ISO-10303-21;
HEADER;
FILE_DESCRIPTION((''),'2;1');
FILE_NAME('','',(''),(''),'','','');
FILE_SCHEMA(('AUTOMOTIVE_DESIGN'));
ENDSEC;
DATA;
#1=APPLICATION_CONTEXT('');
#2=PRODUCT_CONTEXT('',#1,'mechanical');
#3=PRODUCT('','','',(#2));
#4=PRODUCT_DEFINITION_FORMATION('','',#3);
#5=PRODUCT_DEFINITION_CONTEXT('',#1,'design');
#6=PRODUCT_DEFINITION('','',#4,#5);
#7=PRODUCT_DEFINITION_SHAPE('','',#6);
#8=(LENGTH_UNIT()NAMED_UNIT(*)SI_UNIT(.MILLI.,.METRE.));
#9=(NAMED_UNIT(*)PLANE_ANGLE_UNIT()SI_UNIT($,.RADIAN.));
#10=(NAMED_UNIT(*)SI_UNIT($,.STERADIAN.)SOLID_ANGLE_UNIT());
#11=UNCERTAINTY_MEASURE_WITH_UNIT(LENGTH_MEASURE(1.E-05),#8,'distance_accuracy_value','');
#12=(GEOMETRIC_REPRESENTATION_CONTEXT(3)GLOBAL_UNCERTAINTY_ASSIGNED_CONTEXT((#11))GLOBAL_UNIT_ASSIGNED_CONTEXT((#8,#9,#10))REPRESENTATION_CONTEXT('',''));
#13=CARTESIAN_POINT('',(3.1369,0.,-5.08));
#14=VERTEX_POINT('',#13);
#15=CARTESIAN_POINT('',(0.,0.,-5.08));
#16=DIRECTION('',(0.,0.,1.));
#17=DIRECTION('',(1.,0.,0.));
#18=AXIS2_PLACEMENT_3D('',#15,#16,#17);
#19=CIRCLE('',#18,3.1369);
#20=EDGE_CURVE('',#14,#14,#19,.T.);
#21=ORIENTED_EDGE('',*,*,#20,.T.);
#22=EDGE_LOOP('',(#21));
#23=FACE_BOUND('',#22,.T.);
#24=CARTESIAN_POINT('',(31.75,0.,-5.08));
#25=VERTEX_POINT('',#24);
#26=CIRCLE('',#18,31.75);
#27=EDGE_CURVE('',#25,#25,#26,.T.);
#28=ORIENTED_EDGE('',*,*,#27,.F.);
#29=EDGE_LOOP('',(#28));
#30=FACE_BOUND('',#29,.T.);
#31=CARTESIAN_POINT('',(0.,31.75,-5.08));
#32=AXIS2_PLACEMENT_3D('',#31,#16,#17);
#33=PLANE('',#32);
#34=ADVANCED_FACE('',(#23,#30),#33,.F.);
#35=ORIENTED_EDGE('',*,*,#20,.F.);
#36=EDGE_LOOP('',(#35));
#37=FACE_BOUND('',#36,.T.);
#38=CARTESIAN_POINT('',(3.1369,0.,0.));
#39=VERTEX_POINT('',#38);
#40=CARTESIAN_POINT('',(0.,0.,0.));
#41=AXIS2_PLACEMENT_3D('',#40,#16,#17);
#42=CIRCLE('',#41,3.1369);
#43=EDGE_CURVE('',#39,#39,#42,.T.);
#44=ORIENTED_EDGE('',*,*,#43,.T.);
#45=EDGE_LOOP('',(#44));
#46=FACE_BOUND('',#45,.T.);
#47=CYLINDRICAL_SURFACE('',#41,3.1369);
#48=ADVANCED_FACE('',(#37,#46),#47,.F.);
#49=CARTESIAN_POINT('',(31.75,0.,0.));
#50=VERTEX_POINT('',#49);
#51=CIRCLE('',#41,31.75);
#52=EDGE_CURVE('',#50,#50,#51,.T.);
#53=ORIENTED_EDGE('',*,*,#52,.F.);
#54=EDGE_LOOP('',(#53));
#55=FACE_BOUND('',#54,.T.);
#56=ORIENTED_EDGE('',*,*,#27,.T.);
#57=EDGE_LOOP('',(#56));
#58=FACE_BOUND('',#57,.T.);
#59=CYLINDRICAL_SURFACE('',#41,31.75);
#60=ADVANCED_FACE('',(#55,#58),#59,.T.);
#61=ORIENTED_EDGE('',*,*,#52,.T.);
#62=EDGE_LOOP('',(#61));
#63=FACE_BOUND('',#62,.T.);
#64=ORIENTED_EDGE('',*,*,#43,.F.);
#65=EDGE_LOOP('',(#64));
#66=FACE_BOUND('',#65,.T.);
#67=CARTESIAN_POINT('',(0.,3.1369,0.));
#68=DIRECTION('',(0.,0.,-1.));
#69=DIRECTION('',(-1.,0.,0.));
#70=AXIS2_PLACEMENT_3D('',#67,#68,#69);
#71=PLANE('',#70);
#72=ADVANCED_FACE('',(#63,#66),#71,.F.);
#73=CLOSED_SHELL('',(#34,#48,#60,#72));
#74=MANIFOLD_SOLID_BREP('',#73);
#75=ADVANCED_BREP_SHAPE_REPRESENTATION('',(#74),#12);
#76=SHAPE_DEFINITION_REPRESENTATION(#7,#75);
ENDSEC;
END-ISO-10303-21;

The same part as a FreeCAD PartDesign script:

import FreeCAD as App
import Part
import Sketcher
from FreeCAD import Vector
Q = App.Units.Quantity


def add_polygon(sketch, points):
    """Adds a closed chain of lines whose ends are joined by coincident constraints."""
    first, n = sketch.GeometryCount, len(points)
    for a, b in zip(points, points[1:] + points[:1]):
        sketch.addGeometry(Part.LineSegment(App.Vector(*a, 0), App.Vector(*b, 0)), False)
    for i in range(n):
        sketch.addConstraint(Sketcher.Constraint("Coincident", first + i, 2, first + (i + 1) % n, 1))

doc = App.newDocument("Part")
body = doc.addObject("PartDesign::Body", "Body")

# Sketch on YZ plane
sketch1 = doc.addObject("Sketcher::SketchObject", "Sketch")
body.addObject(sketch1)
sketch1.AttachmentSupport = (doc.YZ_Plane, [""])
sketch1.MapMode = "FlatFace"
add_polygon(sketch1, [(32, 0), (3, 0), (3, -5), (32, -5)])  # lines 0-3
sketch1.addConstraint([
    Sketcher.Constraint("Horizontal", 0),
    Sketcher.Constraint("Vertical", 1),
    Sketcher.Constraint("Horizontal", 2),
    Sketcher.Constraint("Vertical", 3),
    Sketcher.Constraint("PointOnObject", 0, 2, -1),
    Sketcher.Constraint("DistanceY", 1, 2, 1, 1, Q("0.2 in")),
    Sketcher.Constraint("DistanceX", -1, 1, 2, 2, Q("1.25 in")),
    Sketcher.Constraint("DistanceX", 0, 2, 0, 1, Q("1.1265 in")),
])
revolution = doc.addObject("PartDesign::Revolution", "Revolution")
body.addObject(revolution)
revolution.Profile = sketch1
revolution.ReferenceAxis = (sketch1, ["V_Axis"])
revolution.Angle = 360

doc.recompute()
